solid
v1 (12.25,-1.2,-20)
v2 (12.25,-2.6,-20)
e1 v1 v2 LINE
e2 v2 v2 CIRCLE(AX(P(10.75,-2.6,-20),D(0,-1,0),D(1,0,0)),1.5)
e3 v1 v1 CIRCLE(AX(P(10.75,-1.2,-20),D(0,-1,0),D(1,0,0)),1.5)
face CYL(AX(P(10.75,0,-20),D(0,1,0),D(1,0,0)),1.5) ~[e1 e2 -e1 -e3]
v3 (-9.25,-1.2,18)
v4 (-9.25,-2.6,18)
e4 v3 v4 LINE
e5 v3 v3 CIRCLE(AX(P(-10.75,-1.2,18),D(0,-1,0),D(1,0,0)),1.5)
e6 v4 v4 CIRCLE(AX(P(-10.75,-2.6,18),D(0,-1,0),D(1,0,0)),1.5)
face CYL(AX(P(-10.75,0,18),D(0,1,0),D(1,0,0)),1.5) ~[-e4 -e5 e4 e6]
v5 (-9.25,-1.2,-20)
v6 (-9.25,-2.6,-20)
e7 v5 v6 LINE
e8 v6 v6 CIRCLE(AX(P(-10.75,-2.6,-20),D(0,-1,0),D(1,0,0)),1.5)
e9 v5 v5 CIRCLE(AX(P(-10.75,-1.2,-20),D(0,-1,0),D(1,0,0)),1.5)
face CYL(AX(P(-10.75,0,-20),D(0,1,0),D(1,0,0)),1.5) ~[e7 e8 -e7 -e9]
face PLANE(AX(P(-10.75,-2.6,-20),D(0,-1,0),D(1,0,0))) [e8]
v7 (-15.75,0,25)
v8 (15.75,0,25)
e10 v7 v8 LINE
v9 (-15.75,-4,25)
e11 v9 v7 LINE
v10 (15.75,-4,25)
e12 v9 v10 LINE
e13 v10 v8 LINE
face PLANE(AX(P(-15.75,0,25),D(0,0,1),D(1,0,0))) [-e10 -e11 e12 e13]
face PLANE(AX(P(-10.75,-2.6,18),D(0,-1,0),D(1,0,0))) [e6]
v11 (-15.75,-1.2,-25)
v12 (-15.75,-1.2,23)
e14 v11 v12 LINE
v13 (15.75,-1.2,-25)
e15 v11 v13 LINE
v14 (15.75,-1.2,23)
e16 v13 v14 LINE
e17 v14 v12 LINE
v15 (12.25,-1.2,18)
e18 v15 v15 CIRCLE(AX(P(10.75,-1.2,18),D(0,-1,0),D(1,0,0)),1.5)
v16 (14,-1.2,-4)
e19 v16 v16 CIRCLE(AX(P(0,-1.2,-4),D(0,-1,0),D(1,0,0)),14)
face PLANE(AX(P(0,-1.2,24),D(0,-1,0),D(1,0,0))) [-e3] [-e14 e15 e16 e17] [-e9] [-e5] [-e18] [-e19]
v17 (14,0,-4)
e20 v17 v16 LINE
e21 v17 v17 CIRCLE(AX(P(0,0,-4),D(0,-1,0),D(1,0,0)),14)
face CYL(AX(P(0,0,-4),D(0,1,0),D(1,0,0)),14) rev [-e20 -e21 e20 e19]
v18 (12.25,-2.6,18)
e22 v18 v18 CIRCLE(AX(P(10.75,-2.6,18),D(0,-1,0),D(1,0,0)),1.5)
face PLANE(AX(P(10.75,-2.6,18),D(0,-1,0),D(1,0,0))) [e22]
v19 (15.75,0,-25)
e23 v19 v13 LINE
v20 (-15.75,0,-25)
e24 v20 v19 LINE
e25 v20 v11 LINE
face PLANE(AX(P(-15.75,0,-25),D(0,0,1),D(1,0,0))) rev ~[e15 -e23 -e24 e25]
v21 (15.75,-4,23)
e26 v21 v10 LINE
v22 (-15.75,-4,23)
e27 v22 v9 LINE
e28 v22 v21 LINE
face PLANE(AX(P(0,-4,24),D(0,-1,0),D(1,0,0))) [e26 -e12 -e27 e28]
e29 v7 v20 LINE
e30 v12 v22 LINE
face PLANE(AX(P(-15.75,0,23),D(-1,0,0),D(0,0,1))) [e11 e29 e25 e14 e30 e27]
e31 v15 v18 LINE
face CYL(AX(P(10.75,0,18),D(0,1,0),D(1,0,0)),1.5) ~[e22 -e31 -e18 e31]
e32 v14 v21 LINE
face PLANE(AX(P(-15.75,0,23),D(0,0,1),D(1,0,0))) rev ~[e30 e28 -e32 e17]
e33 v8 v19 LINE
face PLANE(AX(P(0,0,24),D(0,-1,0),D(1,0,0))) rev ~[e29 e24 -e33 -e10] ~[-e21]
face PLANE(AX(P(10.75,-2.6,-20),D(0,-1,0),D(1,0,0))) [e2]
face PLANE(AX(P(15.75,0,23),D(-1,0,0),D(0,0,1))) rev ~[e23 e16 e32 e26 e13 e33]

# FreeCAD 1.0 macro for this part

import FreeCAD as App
import Part
import Sketcher

V = App.Vector

doc = App.newDocument("Part")
body = doc.addObject("PartDesign::Body", "Body")

sketch1 = body.newObject("Sketcher::SketchObject", "Sketch")
sketch1.AttachmentSupport = (doc.getObject("XZ_Plane"), [""])
sketch1.MapMode = "FlatFace"
sketch1.addGeometry([
    Part.LineSegment(V(-15.8, 23, 0), V(-15.8, -25, 0)),
    Part.LineSegment(V(-15.8, -25, 0), V(15.8, -25, 0)),
    Part.LineSegment(V(15.8, -25, 0), V(15.8, 23, 0)),
    Part.LineSegment(V(15.8, 23, 0), V(-15.8, 23, 0)),
    Part.Circle(V(-10.8, -20, 0), V(0, 0, 1), 1.5),
    Part.Circle(V(10.8, -20, 0), V(0, 0, 1), 1.5),
    Part.Circle(V(0, -4, 0), V(0, 0, 1), 14),
    Part.Circle(V(-10.8, 18, 0), V(0, 0, 1), 1.5),
    Part.Circle(V(10.8, 18, 0), V(0, 0, 1), 1.5),
], False)
sketch1.addConstraint([
    Sketcher.Constraint("Coincident", 0, 2, 1, 1),
    Sketcher.Constraint("Coincident", 1, 2, 2, 1),
    Sketcher.Constraint("Coincident", 2, 2, 3, 1),
    Sketcher.Constraint("Coincident", 3, 2, 0, 1),
    Sketcher.Constraint("Vertical", 0),
    Sketcher.Constraint("Horizontal", 1),
    Sketcher.Constraint("Vertical", 2),
    Sketcher.Constraint("Horizontal", 3),
    Sketcher.Constraint("Equal", 4, 5),
    Sketcher.Constraint("Equal", 5, 7),
    Sketcher.Constraint("Equal", 7, 8),
    Sketcher.Constraint("Symmetric", 4, 3, 5, 3, -2),
    Sketcher.Constraint("Symmetric", 7, 3, 8, 3, -2),
    Sketcher.Constraint("PointOnObject", 6, 3, -2),
    Sketcher.Constraint("Vertical", 4, 3, 7, 3),
    Sketcher.Constraint("Diameter", 4, 3.0),
    Sketcher.Constraint("Diameter", 6, 28.0),
    Sketcher.Constraint("DistanceY", 0, 2, 0, 1, 48.0),
    Sketcher.Constraint("DistanceX", 1, 1, 1, 2, 31.5),
    Sketcher.Constraint("DistanceY", 4, 3, -1, 1, 20.0),
    Sketcher.Constraint("DistanceY", 6, 3, -1, 1, 4.0),
    Sketcher.Constraint("DistanceY", -1, 1, 7, 3, 18.0),
    Sketcher.Constraint("DistanceY", 0, 2, -1, 1, 25.0),
    Sketcher.Constraint("DistanceX", 0, 2, 4, 3, 5.0),
    Sketcher.Constraint("DistanceX", 5, 3, 1, 2, 5.0),
])
pad1 = body.newObject("PartDesign::Pad", "Pad")
pad1.Profile = sketch1
pad1.Length = 1.2

sketch2 = body.newObject("Sketcher::SketchObject", "Sketch001")
sketch2.AttachmentSupport = (doc.getObject("XZ_Plane"), [""])
sketch2.MapMode = "FlatFace"
sketch2.addGeometry([
    Part.LineSegment(V(-15.8, 25, 0), V(-15.8, 23, 0)),
    Part.LineSegment(V(-15.8, 23, 0), V(15.8, 23, 0)),
    Part.LineSegment(V(15.8, 23, 0), V(15.8, 25, 0)),
    Part.LineSegment(V(15.8, 25, 0), V(-15.8, 25, 0)),
], False)
sketch2.addConstraint([
    Sketcher.Constraint("Coincident", 0, 2, 1, 1),
    Sketcher.Constraint("Coincident", 1, 2, 2, 1),
    Sketcher.Constraint("Coincident", 2, 2, 3, 1),
    Sketcher.Constraint("Coincident", 3, 2, 0, 1),
    Sketcher.Constraint("Vertical", 0),
    Sketcher.Constraint("Horizontal", 1),
    Sketcher.Constraint("Vertical", 2),
    Sketcher.Constraint("Horizontal", 3),
    Sketcher.Constraint("DistanceY", 0, 2, 0, 1, 2.0),
    Sketcher.Constraint("DistanceX", 1, 1, 1, 2, 31.5),
    Sketcher.Constraint("DistanceY", -1, 1, 0, 2, 23.0),
    Sketcher.Constraint("DistanceX", 0, 2, -1, 1, 15.75),
])
pad2 = body.newObject("PartDesign::Pad", "Pad001")
pad2.Profile = sketch2
pad2.Length = 1.2

sketch3 = body.newObject("Sketcher::SketchObject", "Sketch002")
sketch3.AttachmentSupport = (doc.getObject("XZ_Plane"), [""])
sketch3.MapMode = "FlatFace"
sketch3.addGeometry([
    Part.Circle(V(-10.8, 18, 0), V(0, 0, 1), 1.5),
    Part.Circle(V(10.8, 18, 0), V(0, 0, 1), 1.5),
    Part.Circle(V(10.8, -20, 0), V(0, 0, 1), 1.5),
    Part.Circle(V(-10.8, -20, 0), V(0, 0, 1), 1.5),
], False)
sketch3.addConstraint([
    Sketcher.Constraint("Equal", 0, 1),
    Sketcher.Constraint("Equal", 1, 2),
    Sketcher.Constraint("Equal", 2, 3),
    Sketcher.Constraint("Symmetric", 0, 3, 1, 3, -2),
    Sketcher.Constraint("Symmetric", 2, 3, 3, 3, -2),
    Sketcher.Constraint("Vertical", 1, 3, 2, 3),
    Sketcher.Constraint("Diameter", 0, 3.0),
    Sketcher.Constraint("DistanceY", -1, 1, 0, 3, 18.0),
    Sketcher.Constraint("DistanceY", 2, 3, -1, 1, 20.0),
    Sketcher.Constraint("DistanceX", 0, 3, 1, 3, 21.5),
])
pad3 = body.newObject("PartDesign::Pad", "Pad002")
pad3.Profile = sketch3
pad3.Length = 2.6

sketch4 = body.newObject("Sketcher::SketchObject", "Sketch003")
sketch4.AttachmentSupport = (doc.getObject("XZ_Plane"), [""])
sketch4.MapMode = "FlatFace"
sketch4.addGeometry([
    Part.LineSegment(V(-15.8, 25, 0), V(-15.8, 23, 0)),
    Part.LineSegment(V(-15.8, 23, 0), V(15.8, 23, 0)),
    Part.LineSegment(V(15.8, 23, 0), V(15.8, 25, 0)),
    Part.LineSegment(V(15.8, 25, 0), V(-15.8, 25, 0)),
], False)
sketch4.addConstraint([
    Sketcher.Constraint("Coincident", 0, 2, 1, 1),
    Sketcher.Constraint("Coincident", 1, 2, 2, 1),
    Sketcher.Constraint("Coincident", 2, 2, 3, 1),
    Sketcher.Constraint("Coincident", 3, 2, 0, 1),
    Sketcher.Constraint("Vertical", 0),
    Sketcher.Constraint("Horizontal", 1),
    Sketcher.Constraint("Vertical", 2),
    Sketcher.Constraint("Horizontal", 3),
    Sketcher.Constraint("DistanceY", 0, 2, 0, 1, 2.0),
    Sketcher.Constraint("DistanceX", 1, 1, 1, 2, 31.5),
    Sketcher.Constraint("DistanceY", -1, 1, 0, 2, 23.0),
    Sketcher.Constraint("DistanceX", 0, 2, -1, 1, 15.75),
])
pad4 = body.newObject("PartDesign::Pad", "Pad003")
pad4.Profile = sketch4
pad4.Length = 4

doc.recompute()
